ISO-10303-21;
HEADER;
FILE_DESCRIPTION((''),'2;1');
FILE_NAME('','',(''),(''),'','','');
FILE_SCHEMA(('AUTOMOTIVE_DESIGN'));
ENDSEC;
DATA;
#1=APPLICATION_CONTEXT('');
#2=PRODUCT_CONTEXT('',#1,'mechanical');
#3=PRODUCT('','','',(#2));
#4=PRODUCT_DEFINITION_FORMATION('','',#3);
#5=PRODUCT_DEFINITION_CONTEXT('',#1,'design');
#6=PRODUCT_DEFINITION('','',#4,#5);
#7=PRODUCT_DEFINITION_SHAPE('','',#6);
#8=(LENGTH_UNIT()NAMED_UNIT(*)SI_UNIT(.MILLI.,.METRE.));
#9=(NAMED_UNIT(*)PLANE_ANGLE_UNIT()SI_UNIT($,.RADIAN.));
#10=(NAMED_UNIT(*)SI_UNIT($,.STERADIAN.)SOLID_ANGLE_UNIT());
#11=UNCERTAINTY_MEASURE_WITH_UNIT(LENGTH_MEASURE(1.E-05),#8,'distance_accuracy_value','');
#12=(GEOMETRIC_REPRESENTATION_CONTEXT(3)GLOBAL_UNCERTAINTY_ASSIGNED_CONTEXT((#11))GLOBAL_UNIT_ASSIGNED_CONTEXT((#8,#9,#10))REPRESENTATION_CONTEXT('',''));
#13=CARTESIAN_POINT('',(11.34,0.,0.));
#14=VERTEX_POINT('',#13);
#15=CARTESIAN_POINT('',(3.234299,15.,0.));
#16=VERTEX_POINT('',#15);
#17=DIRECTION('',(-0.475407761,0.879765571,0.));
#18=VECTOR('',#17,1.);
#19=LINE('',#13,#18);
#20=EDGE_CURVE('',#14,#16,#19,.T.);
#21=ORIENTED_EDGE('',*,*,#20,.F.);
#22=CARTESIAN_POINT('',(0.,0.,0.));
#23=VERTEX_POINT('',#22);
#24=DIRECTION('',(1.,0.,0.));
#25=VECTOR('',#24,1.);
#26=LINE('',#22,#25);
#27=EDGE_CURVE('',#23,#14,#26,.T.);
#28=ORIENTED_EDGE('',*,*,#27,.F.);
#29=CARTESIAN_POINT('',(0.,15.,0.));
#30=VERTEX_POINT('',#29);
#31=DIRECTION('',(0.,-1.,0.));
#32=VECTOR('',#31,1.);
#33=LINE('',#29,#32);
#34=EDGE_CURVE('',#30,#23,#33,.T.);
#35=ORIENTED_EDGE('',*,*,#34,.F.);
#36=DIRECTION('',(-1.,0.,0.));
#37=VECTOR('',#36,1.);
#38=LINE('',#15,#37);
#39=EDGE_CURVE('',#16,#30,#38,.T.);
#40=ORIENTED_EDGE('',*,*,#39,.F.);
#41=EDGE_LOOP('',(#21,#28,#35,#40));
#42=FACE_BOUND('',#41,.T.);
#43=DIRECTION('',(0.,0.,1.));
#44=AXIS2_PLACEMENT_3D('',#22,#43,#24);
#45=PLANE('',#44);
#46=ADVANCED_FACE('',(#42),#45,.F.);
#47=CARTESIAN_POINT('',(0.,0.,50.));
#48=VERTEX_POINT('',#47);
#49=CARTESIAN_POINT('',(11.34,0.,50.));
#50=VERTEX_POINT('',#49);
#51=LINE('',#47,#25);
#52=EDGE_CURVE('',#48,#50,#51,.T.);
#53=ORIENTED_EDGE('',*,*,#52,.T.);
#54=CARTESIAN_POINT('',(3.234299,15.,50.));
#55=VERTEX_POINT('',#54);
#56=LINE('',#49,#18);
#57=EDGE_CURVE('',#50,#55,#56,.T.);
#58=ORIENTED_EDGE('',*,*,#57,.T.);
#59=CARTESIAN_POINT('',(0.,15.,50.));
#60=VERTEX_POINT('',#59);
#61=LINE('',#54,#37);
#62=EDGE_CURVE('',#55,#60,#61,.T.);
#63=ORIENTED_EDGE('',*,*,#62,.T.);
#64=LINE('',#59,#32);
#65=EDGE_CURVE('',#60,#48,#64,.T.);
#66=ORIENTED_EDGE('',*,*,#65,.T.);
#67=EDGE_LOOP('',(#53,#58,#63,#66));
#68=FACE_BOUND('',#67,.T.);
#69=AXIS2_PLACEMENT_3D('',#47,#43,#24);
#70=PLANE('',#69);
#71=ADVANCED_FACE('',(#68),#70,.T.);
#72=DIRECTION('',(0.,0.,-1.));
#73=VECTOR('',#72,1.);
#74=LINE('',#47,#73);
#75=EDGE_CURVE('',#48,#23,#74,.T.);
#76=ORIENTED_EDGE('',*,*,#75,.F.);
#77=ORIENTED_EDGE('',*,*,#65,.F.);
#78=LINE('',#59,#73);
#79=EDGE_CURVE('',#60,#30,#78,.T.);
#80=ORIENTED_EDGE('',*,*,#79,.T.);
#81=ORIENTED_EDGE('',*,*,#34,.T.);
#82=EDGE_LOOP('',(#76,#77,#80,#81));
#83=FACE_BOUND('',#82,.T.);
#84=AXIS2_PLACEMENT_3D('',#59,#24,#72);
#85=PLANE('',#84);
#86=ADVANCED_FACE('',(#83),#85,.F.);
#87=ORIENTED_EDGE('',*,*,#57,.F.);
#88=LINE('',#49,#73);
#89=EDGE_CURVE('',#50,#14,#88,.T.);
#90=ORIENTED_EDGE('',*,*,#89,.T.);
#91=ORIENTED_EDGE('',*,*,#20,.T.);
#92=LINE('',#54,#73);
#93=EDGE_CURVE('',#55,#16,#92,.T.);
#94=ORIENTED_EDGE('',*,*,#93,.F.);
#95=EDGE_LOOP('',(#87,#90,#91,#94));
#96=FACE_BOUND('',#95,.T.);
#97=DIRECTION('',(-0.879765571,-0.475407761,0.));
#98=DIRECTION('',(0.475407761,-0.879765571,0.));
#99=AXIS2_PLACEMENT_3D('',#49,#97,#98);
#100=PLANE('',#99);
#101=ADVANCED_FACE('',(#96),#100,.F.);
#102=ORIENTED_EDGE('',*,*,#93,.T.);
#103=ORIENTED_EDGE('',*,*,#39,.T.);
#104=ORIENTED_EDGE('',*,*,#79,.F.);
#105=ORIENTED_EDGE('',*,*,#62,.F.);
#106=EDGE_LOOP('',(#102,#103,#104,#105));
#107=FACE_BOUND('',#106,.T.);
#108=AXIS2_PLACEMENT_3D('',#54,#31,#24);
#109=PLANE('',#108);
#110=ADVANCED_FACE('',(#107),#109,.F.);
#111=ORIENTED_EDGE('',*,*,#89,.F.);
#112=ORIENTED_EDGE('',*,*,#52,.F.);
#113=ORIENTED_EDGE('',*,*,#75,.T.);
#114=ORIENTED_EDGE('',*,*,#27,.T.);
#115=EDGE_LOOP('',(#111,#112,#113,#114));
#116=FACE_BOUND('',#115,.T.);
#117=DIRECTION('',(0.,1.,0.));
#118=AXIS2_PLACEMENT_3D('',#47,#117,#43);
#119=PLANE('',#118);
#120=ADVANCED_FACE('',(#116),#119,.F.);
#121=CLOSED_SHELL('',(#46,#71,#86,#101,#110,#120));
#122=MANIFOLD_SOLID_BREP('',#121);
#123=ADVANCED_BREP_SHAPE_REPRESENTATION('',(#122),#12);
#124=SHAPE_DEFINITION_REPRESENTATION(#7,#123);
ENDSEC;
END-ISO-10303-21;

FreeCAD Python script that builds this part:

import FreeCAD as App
import Part
import Sketcher
from FreeCAD import Vector


def add_polygon(sketch, points):
    """Adds a closed chain of lines whose ends are joined by coincident constraints."""
    first, n = sketch.GeometryCount, len(points)
    for a, b in zip(points, points[1:] + points[:1]):
        sketch.addGeometry(Part.LineSegment(App.Vector(*a, 0), App.Vector(*b, 0)), False)
    for i in range(n):
        sketch.addConstraint(Sketcher.Constraint("Coincident", first + i, 2, first + (i + 1) % n, 1))

doc = App.newDocument("Part")
body = doc.addObject("PartDesign::Body", "Body")

# Sketch on XY plane
sketch1 = body.newObject("Sketcher::SketchObject", "Sketch")
sketch1.AttachmentSupport = (doc.getObject("XY_Plane"), [""])
sketch1.MapMode = "FlatFace"
add_polygon(sketch1, [(0, 15), (0, 0), (11.34, 0), (3.234299, 15)])  # lines 0-3
sketch1.addConstraint(Sketcher.Constraint("Vertical", 0))
sketch1.addConstraint(Sketcher.Constraint("Horizontal", 1))
sketch1.addConstraint(Sketcher.Constraint("Horizontal", 3))
sketch1.addConstraint(Sketcher.Constraint("Coincident", 0, 2, -1, 1))
sketch1.addConstraint(Sketcher.Constraint("DistanceY", 0, 2, 0, 1, 15.0))
sketch1.addConstraint(Sketcher.Constraint("DistanceX", 1, 1, 1, 2, 11.34))
sketch1.addConstraint(Sketcher.Constraint("DistanceX", 3, 2, 3, 1, 3.234299))
pad1 = body.newObject("PartDesign::Pad", "Pad")
pad1.Profile = sketch1
pad1.Length = 50

doc.recompute()
